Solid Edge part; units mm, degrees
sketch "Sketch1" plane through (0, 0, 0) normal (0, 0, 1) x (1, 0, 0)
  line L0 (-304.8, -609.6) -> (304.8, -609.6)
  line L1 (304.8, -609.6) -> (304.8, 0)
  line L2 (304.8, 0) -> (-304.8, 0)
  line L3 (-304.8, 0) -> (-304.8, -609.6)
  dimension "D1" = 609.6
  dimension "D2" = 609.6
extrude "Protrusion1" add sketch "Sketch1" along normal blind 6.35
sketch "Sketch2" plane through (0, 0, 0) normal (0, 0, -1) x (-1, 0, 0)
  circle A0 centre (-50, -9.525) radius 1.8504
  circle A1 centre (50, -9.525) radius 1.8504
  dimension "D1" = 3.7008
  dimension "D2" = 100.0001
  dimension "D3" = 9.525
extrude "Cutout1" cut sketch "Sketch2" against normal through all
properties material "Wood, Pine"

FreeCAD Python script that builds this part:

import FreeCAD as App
import Part
import Sketcher
from FreeCAD import Vector
Q = App.Units.Quantity

doc = App.newDocument("Part")
body = doc.addObject("PartDesign::Body", "Body")

# Sketch on XY plane
sketch1 = body.newObject("Sketcher::SketchObject", "Sketch")
sketch1.AttachmentSupport = (doc.getObject("XY_Plane"), [""])
sketch1.MapMode = "FlatFace"
sketch1.addGeometry([
    Part.LineSegment(Vector(-305, 0, 0), Vector(-305, -610, 0)),
    Part.LineSegment(Vector(-305, -610, 0), Vector(305, -610, 0)),
    Part.LineSegment(Vector(305, -610, 0), Vector(305, 0, 0)),
    Part.LineSegment(Vector(305, 0, 0), Vector(-305, 0, 0)),
], False)
sketch1.addConstraint([
    Sketcher.Constraint("Coincident", 0, 2, 1, 1),
    Sketcher.Constraint("Coincident", 1, 2, 2, 1),
    Sketcher.Constraint("Coincident", 2, 2, 3, 1),
    Sketcher.Constraint("Coincident", 3, 2, 0, 1),
    Sketcher.Constraint("Vertical", 0),
    Sketcher.Constraint("Horizontal", 1),
    Sketcher.Constraint("Vertical", 2),
    Sketcher.Constraint("Horizontal", 3),
    Sketcher.Constraint("Symmetric", 2, 2, 3, 2, -1, 1),
    Sketcher.Constraint("Equal", 3, 0),
    Sketcher.Constraint("DistanceX", 0, 2, -1, 1, Q("12 in")),
])
pad1 = body.newObject("PartDesign::Pad", "Pad")
pad1.Profile = sketch1
pad1.Length = Q("0.25 in")

# Sketch on XY plane
sketch2 = body.newObject("Sketcher::SketchObject", "Sketch001")
sketch2.AttachmentSupport = (doc.getObject("XY_Plane"), [""])
sketch2.MapMode = "FlatFace"
sketch2.addGeometry([
    Part.Circle(Vector(50, -9.5, 0), Vector(0, 0, 1), 1.9),
    Part.Circle(Vector(-50, -9.5, 0), Vector(0, 0, 1), 1.9),
], False)
sketch2.addConstraint([
    Sketcher.Constraint("Equal", 0, 1),
    Sketcher.Constraint("Symmetric", 0, 3, 1, 3, -2),
    Sketcher.Constraint("Diameter", 0, Q("0.1457 in")),
    Sketcher.Constraint("DistanceX", -1, 1, 0, 3, Q("1.9685 in")),
    Sketcher.Constraint("DistanceY", 0, 3, -1, 1, Q("0.375 in")),
])
pocket1 = body.newObject("PartDesign::Pocket", "Pocket")
pocket1.Profile = sketch2
pocket1.Type = "ThroughAll"
pocket1.Reversed = True

doc.recompute()
